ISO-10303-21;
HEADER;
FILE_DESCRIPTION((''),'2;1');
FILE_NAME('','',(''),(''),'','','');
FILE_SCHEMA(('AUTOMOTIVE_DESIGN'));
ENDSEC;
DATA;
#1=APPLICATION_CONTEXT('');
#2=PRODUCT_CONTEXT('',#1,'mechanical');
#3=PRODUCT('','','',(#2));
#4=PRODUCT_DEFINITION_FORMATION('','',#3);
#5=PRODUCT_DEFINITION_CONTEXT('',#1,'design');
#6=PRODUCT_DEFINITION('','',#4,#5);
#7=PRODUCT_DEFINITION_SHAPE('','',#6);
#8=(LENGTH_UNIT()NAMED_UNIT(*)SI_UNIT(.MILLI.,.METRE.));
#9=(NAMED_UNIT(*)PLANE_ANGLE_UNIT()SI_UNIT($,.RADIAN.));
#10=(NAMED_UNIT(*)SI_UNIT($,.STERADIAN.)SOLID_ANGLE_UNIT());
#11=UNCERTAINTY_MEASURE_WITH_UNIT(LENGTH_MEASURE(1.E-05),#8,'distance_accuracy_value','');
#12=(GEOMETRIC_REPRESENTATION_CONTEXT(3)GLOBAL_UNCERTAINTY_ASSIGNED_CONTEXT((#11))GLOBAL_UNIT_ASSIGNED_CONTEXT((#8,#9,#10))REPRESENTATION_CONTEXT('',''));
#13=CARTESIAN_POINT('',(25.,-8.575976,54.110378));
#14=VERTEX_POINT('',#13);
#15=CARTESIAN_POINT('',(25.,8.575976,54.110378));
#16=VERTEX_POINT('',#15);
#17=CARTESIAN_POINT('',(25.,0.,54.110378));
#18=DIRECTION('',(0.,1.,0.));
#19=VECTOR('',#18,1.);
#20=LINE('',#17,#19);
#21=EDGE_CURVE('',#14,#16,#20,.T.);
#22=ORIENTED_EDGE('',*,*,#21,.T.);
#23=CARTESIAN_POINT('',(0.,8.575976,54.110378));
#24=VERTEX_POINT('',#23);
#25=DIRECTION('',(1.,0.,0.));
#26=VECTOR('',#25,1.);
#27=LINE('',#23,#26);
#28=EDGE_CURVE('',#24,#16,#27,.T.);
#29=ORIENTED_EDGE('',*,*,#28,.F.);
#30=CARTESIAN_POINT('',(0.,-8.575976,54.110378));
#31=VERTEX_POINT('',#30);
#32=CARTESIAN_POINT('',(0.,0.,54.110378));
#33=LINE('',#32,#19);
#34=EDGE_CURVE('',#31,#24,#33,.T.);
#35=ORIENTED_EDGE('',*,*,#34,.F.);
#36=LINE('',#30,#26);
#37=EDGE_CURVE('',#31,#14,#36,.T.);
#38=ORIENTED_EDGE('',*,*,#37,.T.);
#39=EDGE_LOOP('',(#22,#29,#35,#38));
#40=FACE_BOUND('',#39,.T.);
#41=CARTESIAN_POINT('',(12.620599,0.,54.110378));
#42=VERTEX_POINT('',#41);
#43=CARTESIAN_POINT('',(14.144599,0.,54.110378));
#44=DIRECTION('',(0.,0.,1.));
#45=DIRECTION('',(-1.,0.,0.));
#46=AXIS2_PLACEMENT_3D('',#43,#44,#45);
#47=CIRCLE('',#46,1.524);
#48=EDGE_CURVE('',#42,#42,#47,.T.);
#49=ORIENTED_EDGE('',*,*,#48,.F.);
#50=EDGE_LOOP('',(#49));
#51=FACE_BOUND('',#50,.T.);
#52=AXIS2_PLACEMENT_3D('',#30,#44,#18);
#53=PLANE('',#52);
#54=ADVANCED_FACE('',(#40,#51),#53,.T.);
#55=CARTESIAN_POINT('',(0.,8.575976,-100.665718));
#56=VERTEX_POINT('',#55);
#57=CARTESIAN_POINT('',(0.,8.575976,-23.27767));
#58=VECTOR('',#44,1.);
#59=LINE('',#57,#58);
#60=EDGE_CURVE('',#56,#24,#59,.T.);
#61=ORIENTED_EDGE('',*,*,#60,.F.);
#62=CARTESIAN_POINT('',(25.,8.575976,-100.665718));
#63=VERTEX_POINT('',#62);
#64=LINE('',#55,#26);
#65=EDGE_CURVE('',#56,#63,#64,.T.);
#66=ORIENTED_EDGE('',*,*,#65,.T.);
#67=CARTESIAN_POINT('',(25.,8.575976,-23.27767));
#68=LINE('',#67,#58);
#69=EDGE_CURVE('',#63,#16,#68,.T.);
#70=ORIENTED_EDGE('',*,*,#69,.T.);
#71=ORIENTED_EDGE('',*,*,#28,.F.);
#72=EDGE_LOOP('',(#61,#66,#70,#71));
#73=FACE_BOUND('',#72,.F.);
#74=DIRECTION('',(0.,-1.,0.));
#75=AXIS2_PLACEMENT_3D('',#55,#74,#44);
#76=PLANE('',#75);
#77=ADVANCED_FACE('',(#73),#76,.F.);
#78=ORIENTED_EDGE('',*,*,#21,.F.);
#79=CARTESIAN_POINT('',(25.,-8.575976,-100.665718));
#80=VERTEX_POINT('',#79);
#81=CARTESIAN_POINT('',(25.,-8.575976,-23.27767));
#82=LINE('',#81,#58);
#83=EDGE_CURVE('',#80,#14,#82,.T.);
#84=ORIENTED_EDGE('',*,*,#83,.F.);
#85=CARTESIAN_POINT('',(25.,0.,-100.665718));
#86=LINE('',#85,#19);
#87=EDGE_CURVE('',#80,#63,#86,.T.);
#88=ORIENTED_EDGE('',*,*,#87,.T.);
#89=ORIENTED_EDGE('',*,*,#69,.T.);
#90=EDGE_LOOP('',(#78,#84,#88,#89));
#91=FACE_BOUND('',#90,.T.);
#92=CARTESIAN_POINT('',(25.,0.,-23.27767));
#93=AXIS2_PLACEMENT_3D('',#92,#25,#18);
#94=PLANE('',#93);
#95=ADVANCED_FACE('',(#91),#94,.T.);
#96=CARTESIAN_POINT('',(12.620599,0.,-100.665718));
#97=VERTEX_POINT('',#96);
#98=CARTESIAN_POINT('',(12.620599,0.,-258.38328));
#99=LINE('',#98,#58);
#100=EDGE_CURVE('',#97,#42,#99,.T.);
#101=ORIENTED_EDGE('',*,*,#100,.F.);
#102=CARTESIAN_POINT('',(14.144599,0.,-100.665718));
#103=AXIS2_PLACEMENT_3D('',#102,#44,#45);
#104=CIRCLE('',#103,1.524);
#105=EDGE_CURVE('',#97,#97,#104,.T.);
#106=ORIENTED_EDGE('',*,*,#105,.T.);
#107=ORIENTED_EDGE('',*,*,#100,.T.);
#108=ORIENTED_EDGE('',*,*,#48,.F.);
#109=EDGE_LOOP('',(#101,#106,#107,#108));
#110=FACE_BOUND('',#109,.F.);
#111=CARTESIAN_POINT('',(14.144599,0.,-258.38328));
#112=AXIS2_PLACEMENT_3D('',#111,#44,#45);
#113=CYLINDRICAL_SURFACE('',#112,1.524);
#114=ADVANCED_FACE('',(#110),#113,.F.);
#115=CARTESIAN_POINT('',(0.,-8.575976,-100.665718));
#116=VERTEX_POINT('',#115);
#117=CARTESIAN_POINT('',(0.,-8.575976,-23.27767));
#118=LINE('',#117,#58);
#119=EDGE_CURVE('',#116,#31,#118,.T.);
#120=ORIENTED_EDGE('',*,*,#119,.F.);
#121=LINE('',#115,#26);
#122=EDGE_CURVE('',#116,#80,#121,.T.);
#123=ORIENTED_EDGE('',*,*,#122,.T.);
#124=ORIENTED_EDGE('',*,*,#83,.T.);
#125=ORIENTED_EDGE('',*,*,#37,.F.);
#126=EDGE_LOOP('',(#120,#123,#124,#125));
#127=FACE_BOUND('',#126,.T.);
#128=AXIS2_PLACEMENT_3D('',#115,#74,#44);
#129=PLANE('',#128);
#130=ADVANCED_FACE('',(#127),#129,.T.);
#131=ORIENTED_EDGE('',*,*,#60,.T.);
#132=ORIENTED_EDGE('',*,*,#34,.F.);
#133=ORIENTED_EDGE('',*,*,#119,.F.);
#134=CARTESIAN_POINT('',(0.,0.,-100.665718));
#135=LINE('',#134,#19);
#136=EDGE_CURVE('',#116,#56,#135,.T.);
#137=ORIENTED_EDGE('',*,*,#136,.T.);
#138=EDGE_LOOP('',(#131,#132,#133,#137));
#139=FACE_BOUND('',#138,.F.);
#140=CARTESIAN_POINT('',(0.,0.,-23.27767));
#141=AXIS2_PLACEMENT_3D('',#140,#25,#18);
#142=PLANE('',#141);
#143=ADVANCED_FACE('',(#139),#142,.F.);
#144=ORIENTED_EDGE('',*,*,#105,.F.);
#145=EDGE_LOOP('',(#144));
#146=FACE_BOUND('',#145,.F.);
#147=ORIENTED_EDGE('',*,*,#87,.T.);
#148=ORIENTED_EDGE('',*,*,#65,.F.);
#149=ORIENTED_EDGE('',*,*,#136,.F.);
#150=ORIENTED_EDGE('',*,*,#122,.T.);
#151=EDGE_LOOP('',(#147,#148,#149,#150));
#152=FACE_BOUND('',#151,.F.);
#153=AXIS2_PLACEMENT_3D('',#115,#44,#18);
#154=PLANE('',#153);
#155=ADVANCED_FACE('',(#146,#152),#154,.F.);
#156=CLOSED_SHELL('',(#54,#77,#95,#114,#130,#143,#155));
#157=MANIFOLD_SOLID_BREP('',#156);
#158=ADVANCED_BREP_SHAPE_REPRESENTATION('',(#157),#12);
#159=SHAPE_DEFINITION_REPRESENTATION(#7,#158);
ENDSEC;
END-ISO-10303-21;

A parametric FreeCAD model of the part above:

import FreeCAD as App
import Part
import Sketcher
from FreeCAD import Vector


def add_polygon(sketch, points):
    """Adds a closed chain of lines whose ends are joined by coincident constraints."""
    first, n = sketch.GeometryCount, len(points)
    for a, b in zip(points, points[1:] + points[:1]):
        sketch.addGeometry(Part.LineSegment(App.Vector(*a, 0), App.Vector(*b, 0)), False)
    for i in range(n):
        sketch.addConstraint(Sketcher.Constraint("Coincident", first + i, 2, first + (i + 1) % n, 1))

doc = App.newDocument("Part")
body = doc.addObject("PartDesign::Body", "Body")

sketch1 = body.newObject("Sketcher::SketchObject", "Sketch")
sketch1.AttachmentSupport = (doc.getObject("YZ_Plane"), [""])
sketch1.MapMode = "FlatFace"
add_polygon(sketch1, [(-9, 54), (-9, -101), (9, -101), (9, 54)])
sketch1.addConstraint([
    Sketcher.Constraint("Vertical", 0),
    Sketcher.Constraint("Horizontal", 1),
    Sketcher.Constraint("Vertical", 2),
    Sketcher.Constraint("Horizontal", 3),
    Sketcher.Constraint("DistanceX", 1, 1, 1, 2, 17.151952),
    Sketcher.Constraint("DistanceY", 0, 2, 0, 1, 154.776096),
    Sketcher.Constraint("DistanceY", 0, 2, -1, 1, 100.665718),
    Sketcher.Constraint("DistanceX", 0, 2, -1, 1, 8.575976),
])
pad1 = body.newObject("PartDesign::Pad", "Pad")
pad1.Profile = sketch1
pad1.Length = 25

sketch2 = body.newObject("Sketcher::SketchObject", "Sketch001")
sketch2.AttachmentSupport = (doc.getObject("XY_Plane"), [""])
sketch2.MapMode = "FlatFace"
sketch2.AttachmentOffset = App.Placement(Vector(0, 0, -100.665718), App.Rotation())
sketch2.addGeometry(Part.Circle(Vector(14.1, 0, 0), Vector(0, 0, 1), 1.5), False)
sketch2.addConstraint([
    Sketcher.Constraint("PointOnObject", 0, 3, -1),
    Sketcher.Constraint("Diameter", 0, 3.048),
    Sketcher.Constraint("DistanceX", -1, 1, 0, 3, 14.144599),
])
doc.recompute()
hole = body.newObject("PartDesign::Hole", "Hole")
hole.Profile = sketch2
hole.ThreadType = "None"
hole.Diameter = 3.048
hole.DepthType = "ThroughAll"
hole.Reversed = True

doc.recompute()
